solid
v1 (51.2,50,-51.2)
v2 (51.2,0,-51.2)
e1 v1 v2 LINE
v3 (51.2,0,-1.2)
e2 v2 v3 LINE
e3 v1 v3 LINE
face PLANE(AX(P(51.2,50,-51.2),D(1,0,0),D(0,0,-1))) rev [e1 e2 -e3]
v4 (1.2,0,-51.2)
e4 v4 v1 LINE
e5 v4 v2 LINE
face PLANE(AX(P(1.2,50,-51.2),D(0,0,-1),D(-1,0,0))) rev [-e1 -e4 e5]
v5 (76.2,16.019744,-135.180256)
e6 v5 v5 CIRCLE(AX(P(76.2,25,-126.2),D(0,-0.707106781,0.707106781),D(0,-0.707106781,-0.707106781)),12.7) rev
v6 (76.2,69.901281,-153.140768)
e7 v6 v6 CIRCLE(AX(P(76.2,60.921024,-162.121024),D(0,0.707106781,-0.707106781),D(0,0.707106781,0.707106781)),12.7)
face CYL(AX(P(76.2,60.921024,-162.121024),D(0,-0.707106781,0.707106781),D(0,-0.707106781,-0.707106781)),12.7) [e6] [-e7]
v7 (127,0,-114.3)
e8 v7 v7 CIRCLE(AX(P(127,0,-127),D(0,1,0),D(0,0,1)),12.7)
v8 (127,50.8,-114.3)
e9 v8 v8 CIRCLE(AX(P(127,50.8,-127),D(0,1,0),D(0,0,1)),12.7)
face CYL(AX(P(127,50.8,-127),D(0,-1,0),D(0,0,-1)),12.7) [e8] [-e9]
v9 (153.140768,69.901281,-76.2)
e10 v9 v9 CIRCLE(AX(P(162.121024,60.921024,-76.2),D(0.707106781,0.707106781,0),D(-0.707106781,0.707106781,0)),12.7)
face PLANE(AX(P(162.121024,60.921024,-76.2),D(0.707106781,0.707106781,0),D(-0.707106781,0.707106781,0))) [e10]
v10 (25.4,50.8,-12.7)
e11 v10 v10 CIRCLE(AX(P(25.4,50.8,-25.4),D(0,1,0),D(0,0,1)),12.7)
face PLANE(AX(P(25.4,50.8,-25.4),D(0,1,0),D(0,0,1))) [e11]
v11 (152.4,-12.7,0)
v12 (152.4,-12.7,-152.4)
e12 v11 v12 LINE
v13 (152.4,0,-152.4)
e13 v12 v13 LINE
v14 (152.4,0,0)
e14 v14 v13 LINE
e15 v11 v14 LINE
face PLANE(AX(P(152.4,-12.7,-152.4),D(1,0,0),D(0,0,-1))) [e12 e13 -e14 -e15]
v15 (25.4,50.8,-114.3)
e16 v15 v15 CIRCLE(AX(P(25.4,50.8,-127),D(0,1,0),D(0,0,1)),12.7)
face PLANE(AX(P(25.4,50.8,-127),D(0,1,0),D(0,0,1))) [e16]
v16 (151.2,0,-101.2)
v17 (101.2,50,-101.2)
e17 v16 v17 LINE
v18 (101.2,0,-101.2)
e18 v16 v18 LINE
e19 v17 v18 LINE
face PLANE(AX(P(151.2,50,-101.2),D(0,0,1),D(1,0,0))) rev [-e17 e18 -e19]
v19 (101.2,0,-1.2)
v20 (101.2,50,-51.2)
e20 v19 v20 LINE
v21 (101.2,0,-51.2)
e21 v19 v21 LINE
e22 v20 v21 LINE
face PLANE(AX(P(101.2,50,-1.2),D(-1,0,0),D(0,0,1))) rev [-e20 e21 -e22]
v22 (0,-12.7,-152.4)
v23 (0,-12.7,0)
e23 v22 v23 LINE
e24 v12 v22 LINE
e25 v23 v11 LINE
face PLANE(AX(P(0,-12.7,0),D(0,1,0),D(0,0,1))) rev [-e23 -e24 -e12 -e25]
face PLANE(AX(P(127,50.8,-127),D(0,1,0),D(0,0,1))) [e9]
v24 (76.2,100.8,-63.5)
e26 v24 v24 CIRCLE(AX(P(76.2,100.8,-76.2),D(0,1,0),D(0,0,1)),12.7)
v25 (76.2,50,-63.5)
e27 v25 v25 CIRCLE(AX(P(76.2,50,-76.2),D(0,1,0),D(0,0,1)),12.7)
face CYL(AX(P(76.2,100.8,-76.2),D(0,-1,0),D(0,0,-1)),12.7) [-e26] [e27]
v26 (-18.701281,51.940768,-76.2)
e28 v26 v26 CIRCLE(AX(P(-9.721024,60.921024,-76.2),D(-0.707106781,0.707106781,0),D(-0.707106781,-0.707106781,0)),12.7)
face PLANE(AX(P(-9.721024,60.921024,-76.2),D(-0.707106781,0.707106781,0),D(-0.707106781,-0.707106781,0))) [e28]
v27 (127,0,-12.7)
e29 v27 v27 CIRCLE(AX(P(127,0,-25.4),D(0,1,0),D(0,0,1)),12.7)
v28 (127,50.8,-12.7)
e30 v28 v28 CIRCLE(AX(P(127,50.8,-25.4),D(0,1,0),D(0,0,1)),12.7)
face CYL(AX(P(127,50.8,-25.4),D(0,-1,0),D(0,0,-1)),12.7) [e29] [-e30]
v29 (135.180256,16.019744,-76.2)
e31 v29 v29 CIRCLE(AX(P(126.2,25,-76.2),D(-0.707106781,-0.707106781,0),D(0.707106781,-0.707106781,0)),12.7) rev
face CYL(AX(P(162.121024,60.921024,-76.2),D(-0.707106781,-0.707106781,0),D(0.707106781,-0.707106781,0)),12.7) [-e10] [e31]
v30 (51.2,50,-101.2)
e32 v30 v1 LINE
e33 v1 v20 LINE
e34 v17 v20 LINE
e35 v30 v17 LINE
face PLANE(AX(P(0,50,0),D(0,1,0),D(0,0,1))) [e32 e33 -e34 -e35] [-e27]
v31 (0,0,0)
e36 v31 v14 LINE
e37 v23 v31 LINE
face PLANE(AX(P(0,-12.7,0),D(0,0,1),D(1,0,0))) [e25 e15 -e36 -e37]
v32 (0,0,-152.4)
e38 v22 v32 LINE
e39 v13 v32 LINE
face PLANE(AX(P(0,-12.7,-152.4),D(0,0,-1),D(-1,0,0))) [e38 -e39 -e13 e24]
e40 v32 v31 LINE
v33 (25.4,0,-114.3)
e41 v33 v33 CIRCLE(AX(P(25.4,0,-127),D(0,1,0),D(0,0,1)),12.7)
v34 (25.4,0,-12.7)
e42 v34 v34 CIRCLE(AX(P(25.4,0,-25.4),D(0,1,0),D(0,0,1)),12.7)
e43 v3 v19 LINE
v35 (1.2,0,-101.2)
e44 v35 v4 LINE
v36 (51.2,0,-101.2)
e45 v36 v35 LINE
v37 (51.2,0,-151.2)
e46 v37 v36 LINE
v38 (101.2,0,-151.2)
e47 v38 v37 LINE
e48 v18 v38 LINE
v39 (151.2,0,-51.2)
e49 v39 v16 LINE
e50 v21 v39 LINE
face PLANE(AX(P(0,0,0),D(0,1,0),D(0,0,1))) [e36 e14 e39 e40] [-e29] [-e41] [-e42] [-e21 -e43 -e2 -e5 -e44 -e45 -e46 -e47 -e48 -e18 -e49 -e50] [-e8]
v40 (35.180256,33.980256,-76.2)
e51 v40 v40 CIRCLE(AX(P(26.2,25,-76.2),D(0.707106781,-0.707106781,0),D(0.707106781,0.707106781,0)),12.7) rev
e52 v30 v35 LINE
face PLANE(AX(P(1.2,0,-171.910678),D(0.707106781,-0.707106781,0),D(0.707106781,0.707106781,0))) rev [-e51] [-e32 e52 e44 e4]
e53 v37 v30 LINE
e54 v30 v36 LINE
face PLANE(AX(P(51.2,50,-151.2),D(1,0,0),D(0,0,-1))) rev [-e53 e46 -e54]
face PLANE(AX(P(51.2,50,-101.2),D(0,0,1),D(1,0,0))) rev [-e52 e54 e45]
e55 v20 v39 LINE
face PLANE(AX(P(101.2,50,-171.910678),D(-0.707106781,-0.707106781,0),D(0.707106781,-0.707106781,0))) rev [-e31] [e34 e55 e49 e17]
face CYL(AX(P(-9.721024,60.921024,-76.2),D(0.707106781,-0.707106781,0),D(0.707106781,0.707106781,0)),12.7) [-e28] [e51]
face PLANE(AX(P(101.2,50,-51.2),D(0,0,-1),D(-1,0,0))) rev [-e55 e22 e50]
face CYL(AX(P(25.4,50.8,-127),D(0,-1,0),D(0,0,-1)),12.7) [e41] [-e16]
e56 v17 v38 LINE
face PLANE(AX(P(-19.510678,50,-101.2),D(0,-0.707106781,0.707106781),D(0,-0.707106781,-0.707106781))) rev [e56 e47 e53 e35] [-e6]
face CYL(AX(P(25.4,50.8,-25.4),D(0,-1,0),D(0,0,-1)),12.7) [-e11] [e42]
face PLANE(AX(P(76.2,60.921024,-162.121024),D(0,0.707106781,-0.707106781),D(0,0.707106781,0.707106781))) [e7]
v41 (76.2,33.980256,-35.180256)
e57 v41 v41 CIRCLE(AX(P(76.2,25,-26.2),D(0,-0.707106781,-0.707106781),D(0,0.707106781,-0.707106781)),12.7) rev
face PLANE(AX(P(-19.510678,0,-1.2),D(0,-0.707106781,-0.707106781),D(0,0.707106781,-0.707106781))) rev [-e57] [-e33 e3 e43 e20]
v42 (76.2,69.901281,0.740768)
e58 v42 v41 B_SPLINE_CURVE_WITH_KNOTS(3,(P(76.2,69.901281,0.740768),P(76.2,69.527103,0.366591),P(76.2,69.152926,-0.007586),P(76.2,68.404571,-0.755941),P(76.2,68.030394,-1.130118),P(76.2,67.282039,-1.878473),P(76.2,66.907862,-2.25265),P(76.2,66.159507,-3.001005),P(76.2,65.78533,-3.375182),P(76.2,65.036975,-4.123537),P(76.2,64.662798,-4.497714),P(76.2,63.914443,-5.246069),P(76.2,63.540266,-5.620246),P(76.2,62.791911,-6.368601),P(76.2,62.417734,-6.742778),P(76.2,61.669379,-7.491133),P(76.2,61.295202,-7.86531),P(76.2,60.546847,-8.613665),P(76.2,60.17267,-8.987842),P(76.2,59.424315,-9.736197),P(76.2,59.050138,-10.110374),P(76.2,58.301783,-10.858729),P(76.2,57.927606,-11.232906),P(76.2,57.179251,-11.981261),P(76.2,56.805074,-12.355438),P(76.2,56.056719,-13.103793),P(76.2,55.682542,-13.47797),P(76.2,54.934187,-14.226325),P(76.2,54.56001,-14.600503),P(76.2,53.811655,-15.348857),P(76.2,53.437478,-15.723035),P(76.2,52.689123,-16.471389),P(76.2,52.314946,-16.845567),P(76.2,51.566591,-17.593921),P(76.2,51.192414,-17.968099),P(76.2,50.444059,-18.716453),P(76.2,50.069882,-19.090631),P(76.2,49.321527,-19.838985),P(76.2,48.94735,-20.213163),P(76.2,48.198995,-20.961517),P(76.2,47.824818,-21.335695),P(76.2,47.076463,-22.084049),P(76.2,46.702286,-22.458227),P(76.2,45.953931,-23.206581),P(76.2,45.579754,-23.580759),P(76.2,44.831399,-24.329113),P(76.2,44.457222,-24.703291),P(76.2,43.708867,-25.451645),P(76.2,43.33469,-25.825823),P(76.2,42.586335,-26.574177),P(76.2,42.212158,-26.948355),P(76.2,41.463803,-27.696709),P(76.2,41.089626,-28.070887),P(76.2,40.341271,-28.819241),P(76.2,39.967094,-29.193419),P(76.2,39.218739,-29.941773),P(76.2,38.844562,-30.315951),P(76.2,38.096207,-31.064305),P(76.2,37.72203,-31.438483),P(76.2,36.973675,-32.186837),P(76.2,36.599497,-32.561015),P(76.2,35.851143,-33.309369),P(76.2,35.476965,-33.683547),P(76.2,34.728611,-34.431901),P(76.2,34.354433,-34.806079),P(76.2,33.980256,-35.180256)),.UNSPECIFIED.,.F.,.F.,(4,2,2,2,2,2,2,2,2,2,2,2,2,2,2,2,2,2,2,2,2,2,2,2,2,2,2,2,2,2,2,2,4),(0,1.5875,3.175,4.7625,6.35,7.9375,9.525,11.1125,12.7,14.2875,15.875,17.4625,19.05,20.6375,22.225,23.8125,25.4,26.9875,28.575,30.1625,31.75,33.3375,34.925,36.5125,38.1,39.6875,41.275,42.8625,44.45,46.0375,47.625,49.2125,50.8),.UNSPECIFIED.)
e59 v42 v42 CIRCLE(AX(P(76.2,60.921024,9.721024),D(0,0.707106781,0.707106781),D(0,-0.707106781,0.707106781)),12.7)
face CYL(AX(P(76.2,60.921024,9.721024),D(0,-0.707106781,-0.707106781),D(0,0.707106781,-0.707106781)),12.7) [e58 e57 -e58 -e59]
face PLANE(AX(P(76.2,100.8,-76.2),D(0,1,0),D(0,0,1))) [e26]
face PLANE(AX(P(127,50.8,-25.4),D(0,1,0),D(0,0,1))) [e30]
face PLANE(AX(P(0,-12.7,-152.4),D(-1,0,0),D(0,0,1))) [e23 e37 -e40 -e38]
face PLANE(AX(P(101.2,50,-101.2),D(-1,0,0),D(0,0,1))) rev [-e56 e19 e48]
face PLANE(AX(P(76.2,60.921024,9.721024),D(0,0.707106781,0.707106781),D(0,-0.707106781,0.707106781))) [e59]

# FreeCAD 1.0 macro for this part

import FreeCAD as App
import Part
import Sketcher
Q = App.Units.Quantity


def add_polygon(sketch, points):
    """Adds a closed chain of lines whose ends are joined by coincident constraints."""
    first, n = sketch.GeometryCount, len(points)
    for a, b in zip(points, points[1:] + points[:1]):
        sketch.addGeometry(Part.LineSegment(App.Vector(*a, 0), App.Vector(*b, 0)), False)
    for i in range(n):
        sketch.addConstraint(Sketcher.Constraint("Coincident", first + i, 2, first + (i + 1) % n, 1))

doc = App.newDocument("Part")
body = doc.addObject("PartDesign::Body", "Body")

# Sketch on XZ plane
sketch1 = body.newObject("Sketcher::SketchObject", "Sketch")
sketch1.AttachmentSupport = (doc.getObject("XZ_Plane"), [""])
sketch1.MapMode = "FlatFace"
add_polygon(sketch1, [(0, -152), (0, 0), (152, 0), (152, -152)])  # lines 0-3
sketch1.addConstraint([
    Sketcher.Constraint("Vertical", 0),
    Sketcher.Constraint("Horizontal", 1),
    Sketcher.Constraint("Vertical", 2),
    Sketcher.Constraint("Horizontal", 3),
    Sketcher.Constraint("Coincident", 0, 2, -1, 1),
    Sketcher.Constraint("Equal", 3, 0),
    Sketcher.Constraint("DistanceX", 1, 1, 1, 2, Q("6 in")),
])
pad1 = body.newObject("PartDesign::Pad", "Pad")
pad1.Profile = sketch1
pad1.Length = Q("0.5 in")

# Sketch on XZ plane
sketch2 = body.newObject("Sketcher::SketchObject", "Sketch001")
sketch2.AttachmentSupport = (doc.getObject("XZ_Plane"), [""])
sketch2.MapMode = "FlatFace"
sketch2.addGeometry([
    Part.Circle(App.Vector(25, -127, 0), App.Vector(0, 0, 1), 13),
    Part.Circle(App.Vector(127, -127, 0), App.Vector(0, 0, 1), 13),
    Part.Circle(App.Vector(127, -25, 0), App.Vector(0, 0, 1), 13),
    Part.Circle(App.Vector(25, -25, 0), App.Vector(0, 0, 1), 13),
], False)
sketch2.addConstraint([
    Sketcher.Constraint("Equal", 0, 1),
    Sketcher.Constraint("Equal", 1, 2),
    Sketcher.Constraint("Equal", 2, 3),
    Sketcher.Constraint("Horizontal", 0, 3, 1, 3),
    Sketcher.Constraint("Horizontal", 2, 3, 3, 3),
    Sketcher.Constraint("Vertical", 1, 3, 2, 3),
    Sketcher.Constraint("Vertical", 0, 3, 3, 3),
    Sketcher.Constraint("Diameter", 0, Q("1 in")),
    Sketcher.Constraint("DistanceX", -1, 1, 0, 3, Q("1 in")),
    Sketcher.Constraint("DistanceY", 0, 3, -1, 1, Q("5 in")),
    Sketcher.Constraint("DistanceX", -1, 1, 1, 3, Q("5 in")),
    Sketcher.Constraint("DistanceY", 2, 3, -1, 1, Q("1 in")),
])
pad2 = body.newObject("PartDesign::Pad", "Pad001")
pad2.Profile = sketch2
pad2.Length = Q("2 in")
pad2.Reversed = True

# Sketch on XZ plane
sketch3 = body.newObject("Sketcher::SketchObject", "Sketch002")
sketch3.AttachmentSupport = (doc.getObject("XZ_Plane"), [""])
sketch3.MapMode = "FlatFace"
add_polygon(sketch3, [(51, -151), (51, -101), (1, -101), (1, -51), (51, -51), (51, -1), (101, -1), (101, -51), (151, -51), (151, -101), (101, -101), (101, -151)])  # lines 0-11
sketch3.addConstraint([
    Sketcher.Constraint("Vertical", 0),
    Sketcher.Constraint("Horizontal", 1),
    Sketcher.Constraint("Vertical", 2),
    Sketcher.Constraint("Horizontal", 3),
    Sketcher.Constraint("Vertical", 4),
    Sketcher.Constraint("Horizontal", 5),
    Sketcher.Constraint("Vertical", 6),
    Sketcher.Constraint("Horizontal", 7),
    Sketcher.Constraint("Vertical", 8),
    Sketcher.Constraint("Horizontal", 9),
    Sketcher.Constraint("Vertical", 10),
    Sketcher.Constraint("Horizontal", 11),
    Sketcher.Constraint("Horizontal", 3, 2, 6, 2),
    Sketcher.Constraint("Horizontal", 1, 2, 8, 2),
    Sketcher.Constraint("Vertical", 0, 2, 3, 2),
    Sketcher.Constraint("Vertical", 6, 2, 9, 2),
    Sketcher.Constraint("Equal", 3, 5),
    Sketcher.Constraint("Equal", 5, 7),
    Sketcher.Constraint("Equal", 11, 0),
    Sketcher.Constraint("Equal", 0, 2),
    Sketcher.Constraint("Equal", 2, 4),
    Sketcher.Constraint("DistanceX", 1, 2, 1, 1, 50.0),
    Sketcher.Constraint("DistanceX", -1, 1, 0, 2, 51.2),
    Sketcher.Constraint("DistanceY", 0, 2, -1, 1, 101.2),
])
pad3 = body.newObject("PartDesign::Pad", "Pad002")
pad3.Profile = sketch3
pad3.Length = 50
pad3.Reversed = True

# Sketch on XY plane
sketch4 = body.newObject("Sketcher::SketchObject", "Sketch003")
sketch4.AttachmentSupport = (doc.getObject("XY_Plane"), [""])
sketch4.MapMode = "FlatFace"
sketch4.AttachmentOffset = App.Placement(App.Vector(0, 0, -51.2), App.Rotation())
add_polygon(sketch4, [(1, 0), (51, 50), (1, 50)])  # lines 0-2
add_polygon(sketch4, [(101, 50), (151, 0), (151, 50)])  # lines 3-5
sketch4.addConstraint([
    Sketcher.Constraint("Horizontal", 1),
    Sketcher.Constraint("Vertical", 2),
    Sketcher.Constraint("Vertical", 4),
    Sketcher.Constraint("Horizontal", 5),
    Sketcher.Constraint("PointOnObject", 2, 2, -1),
    Sketcher.Constraint("PointOnObject", 3, 2, -1),
    Sketcher.Constraint("Perpendicular", 0, 3),
    Sketcher.Constraint("Horizontal", 1, 2, 4, 2),
    Sketcher.Constraint("Equal", 1, 5),
    Sketcher.Constraint("DistanceX", 1, 2, 1, 1, 50.0),
    Sketcher.Constraint("DistanceX", -1, 1, 0, 2, 51.2),
    Sketcher.Constraint("DistanceX", -1, 1, 3, 2, 151.2),
])
pocket1 = body.newObject("PartDesign::Pocket", "Pocket")
pocket1.Profile = sketch4
pocket1.Length = 50

# Sketch on YZ plane
sketch5 = body.newObject("Sketcher::SketchObject", "Sketch004")
sketch5.AttachmentSupport = (doc.getObject("YZ_Plane"), [""])
sketch5.MapMode = "FlatFace"
sketch5.AttachmentOffset = App.Placement(App.Vector(0, 0, 101.2), App.Rotation())
add_polygon(sketch5, [(0, -1), (50, -51), (50, -1)])  # lines 0-2
add_polygon(sketch5, [(50, -101), (0, -151), (50, -151)])  # lines 3-5
sketch5.addConstraint([
    Sketcher.Constraint("Vertical", 1),
    Sketcher.Constraint("Horizontal", 2),
    Sketcher.Constraint("Horizontal", 4),
    Sketcher.Constraint("Vertical", 5),
    Sketcher.Constraint("PointOnObject", 2, 2, -2),
    Sketcher.Constraint("PointOnObject", 3, 2, -2),
    Sketcher.Constraint("Perpendicular", 0, 3),
    Sketcher.Constraint("Vertical", 1, 2, 4, 2),
    Sketcher.Constraint("Equal", 4, 1),
    Sketcher.Constraint("DistanceX", 2, 2, 2, 1, 50.0),
    Sketcher.Constraint("DistanceY", 0, 2, -1, 1, 51.2),
    Sketcher.Constraint("DistanceY", 3, 2, -1, 1, 151.2),
])
pocket2 = body.newObject("PartDesign::Pocket", "Pocket001")
pocket2.Profile = sketch5
pocket2.Length = 50

# Sketch on an angled plane
sketch6 = body.newObject("Sketcher::SketchObject", "Sketch005")
sketch6.Placement = App.Placement(App.Vector(75.6, 75.6, 0), App.Rotation(App.Vector(0, 0, -1), App.Vector(-0.707106781, 0.707106781, 0), App.Vector(0.707106781, 0.707106781, 0), "ZXY"))
sketch6.addGeometry(Part.Circle(App.Vector(76, -72, 0), App.Vector(0, 0, 1), 13), False)
sketch6.addConstraint([
    Sketcher.Constraint("Diameter", 0, Q("1 in")),
    Sketcher.Constraint("DistanceX", -1, 1, 0, 3, Q("3 in")),
    Sketcher.Constraint("DistanceY", 0, 3, -1, 1, 71.559206),
])
pad4 = body.newObject("PartDesign::Pad", "Pad003")
pad4.Profile = sketch6
pad4.Length = Q("2 in")

# Sketch on an angled plane
sketch7 = body.newObject("Sketcher::SketchObject", "Sketch006")
sketch7.Placement = App.Placement(App.Vector(0, 75.6, -75.6), App.Rotation(App.Vector(1, 0, 0), App.Vector(0, -0.707106781, -0.707106781), App.Vector(0, 0.707106781, -0.707106781), "ZXY"))
sketch7.addGeometry(Part.Circle(App.Vector(76, 72, 0), App.Vector(0, 0, 1), 13), False)
sketch7.addConstraint([
    Sketcher.Constraint("Diameter", 0, Q("1 in")),
    Sketcher.Constraint("DistanceX", -1, 1, 0, 3, Q("3 in")),
    Sketcher.Constraint("DistanceY", -1, 1, 0, 3, 71.559206),
])
pad5 = body.newObject("PartDesign::Pad", "Pad004")
pad5.Profile = sketch7
pad5.Length = Q("2 in")

# Sketch on an angled plane
sketch8 = body.newObject("Sketcher::SketchObject", "Sketch007")
sketch8.Placement = App.Placement(App.Vector(0.6, -0.6, 0), App.Rotation(App.Vector(0, 0, 1), App.Vector(0.707106781, 0.707106781, 0), App.Vector(-0.707106781, 0.707106781, 0), "ZXY"))
sketch8.addGeometry(Part.Circle(App.Vector(-76, 36, 0), App.Vector(0, 0, 1), 13), False)
sketch8.addConstraint([
    Sketcher.Constraint("Diameter", 0, Q("1 in")),
    Sketcher.Constraint("DistanceX", 0, 3, -1, 1, Q("3 in")),
    Sketcher.Constraint("DistanceY", -1, 1, 0, 3, 36.203867),
])
pad6 = body.newObject("PartDesign::Pad", "Pad005")
pad6.Profile = sketch8
pad6.Length = Q("2 in")

# Sketch on an angled plane
sketch9 = body.newObject("Sketcher::SketchObject", "Sketch008")
sketch9.Placement = App.Placement(App.Vector(0, -0.6, -0.6), App.Rotation(App.Vector(1, 0, 0), App.Vector(0, 0.707106781, -0.707106781), App.Vector(0, 0.707106781, 0.707106781), "ZXY"))
sketch9.addGeometry(Part.Circle(App.Vector(76, 36, 0), App.Vector(0, 0, 1), 13), False)
sketch9.addConstraint([
    Sketcher.Constraint("Diameter", 0, Q("1 in")),
    Sketcher.Constraint("DistanceX", -1, 1, 0, 3, Q("3 in")),
    Sketcher.Constraint("DistanceY", -1, 1, 0, 3, 36.203867),
])
pad7 = body.newObject("PartDesign::Pad", "Pad006")
pad7.Profile = sketch9
pad7.Length = Q("2 in")

# Sketch on XZ plane
sketch10 = body.newObject("Sketcher::SketchObject", "Sketch009")
sketch10.AttachmentSupport = (doc.getObject("XZ_Plane"), [""])
sketch10.MapMode = "FlatFace"
sketch10.AttachmentOffset = App.Placement(App.Vector(0, 0, -50), App.Rotation())
sketch10.addGeometry(Part.Circle(App.Vector(76, -76, 0), App.Vector(0, 0, 1), 13), False)
sketch10.addConstraint([
    Sketcher.Constraint("Diameter", 0, Q("1 in")),
    Sketcher.Constraint("DistanceX", -1, 1, 0, 3, Q("3 in")),
    Sketcher.Constraint("DistanceY", 0, 3, -1, 1, Q("3 in")),
])
pad8 = body.newObject("PartDesign::Pad", "Pad007")
pad8.Profile = sketch10
pad8.Length = Q("2 in")
pad8.Reversed = True

doc.recompute()
